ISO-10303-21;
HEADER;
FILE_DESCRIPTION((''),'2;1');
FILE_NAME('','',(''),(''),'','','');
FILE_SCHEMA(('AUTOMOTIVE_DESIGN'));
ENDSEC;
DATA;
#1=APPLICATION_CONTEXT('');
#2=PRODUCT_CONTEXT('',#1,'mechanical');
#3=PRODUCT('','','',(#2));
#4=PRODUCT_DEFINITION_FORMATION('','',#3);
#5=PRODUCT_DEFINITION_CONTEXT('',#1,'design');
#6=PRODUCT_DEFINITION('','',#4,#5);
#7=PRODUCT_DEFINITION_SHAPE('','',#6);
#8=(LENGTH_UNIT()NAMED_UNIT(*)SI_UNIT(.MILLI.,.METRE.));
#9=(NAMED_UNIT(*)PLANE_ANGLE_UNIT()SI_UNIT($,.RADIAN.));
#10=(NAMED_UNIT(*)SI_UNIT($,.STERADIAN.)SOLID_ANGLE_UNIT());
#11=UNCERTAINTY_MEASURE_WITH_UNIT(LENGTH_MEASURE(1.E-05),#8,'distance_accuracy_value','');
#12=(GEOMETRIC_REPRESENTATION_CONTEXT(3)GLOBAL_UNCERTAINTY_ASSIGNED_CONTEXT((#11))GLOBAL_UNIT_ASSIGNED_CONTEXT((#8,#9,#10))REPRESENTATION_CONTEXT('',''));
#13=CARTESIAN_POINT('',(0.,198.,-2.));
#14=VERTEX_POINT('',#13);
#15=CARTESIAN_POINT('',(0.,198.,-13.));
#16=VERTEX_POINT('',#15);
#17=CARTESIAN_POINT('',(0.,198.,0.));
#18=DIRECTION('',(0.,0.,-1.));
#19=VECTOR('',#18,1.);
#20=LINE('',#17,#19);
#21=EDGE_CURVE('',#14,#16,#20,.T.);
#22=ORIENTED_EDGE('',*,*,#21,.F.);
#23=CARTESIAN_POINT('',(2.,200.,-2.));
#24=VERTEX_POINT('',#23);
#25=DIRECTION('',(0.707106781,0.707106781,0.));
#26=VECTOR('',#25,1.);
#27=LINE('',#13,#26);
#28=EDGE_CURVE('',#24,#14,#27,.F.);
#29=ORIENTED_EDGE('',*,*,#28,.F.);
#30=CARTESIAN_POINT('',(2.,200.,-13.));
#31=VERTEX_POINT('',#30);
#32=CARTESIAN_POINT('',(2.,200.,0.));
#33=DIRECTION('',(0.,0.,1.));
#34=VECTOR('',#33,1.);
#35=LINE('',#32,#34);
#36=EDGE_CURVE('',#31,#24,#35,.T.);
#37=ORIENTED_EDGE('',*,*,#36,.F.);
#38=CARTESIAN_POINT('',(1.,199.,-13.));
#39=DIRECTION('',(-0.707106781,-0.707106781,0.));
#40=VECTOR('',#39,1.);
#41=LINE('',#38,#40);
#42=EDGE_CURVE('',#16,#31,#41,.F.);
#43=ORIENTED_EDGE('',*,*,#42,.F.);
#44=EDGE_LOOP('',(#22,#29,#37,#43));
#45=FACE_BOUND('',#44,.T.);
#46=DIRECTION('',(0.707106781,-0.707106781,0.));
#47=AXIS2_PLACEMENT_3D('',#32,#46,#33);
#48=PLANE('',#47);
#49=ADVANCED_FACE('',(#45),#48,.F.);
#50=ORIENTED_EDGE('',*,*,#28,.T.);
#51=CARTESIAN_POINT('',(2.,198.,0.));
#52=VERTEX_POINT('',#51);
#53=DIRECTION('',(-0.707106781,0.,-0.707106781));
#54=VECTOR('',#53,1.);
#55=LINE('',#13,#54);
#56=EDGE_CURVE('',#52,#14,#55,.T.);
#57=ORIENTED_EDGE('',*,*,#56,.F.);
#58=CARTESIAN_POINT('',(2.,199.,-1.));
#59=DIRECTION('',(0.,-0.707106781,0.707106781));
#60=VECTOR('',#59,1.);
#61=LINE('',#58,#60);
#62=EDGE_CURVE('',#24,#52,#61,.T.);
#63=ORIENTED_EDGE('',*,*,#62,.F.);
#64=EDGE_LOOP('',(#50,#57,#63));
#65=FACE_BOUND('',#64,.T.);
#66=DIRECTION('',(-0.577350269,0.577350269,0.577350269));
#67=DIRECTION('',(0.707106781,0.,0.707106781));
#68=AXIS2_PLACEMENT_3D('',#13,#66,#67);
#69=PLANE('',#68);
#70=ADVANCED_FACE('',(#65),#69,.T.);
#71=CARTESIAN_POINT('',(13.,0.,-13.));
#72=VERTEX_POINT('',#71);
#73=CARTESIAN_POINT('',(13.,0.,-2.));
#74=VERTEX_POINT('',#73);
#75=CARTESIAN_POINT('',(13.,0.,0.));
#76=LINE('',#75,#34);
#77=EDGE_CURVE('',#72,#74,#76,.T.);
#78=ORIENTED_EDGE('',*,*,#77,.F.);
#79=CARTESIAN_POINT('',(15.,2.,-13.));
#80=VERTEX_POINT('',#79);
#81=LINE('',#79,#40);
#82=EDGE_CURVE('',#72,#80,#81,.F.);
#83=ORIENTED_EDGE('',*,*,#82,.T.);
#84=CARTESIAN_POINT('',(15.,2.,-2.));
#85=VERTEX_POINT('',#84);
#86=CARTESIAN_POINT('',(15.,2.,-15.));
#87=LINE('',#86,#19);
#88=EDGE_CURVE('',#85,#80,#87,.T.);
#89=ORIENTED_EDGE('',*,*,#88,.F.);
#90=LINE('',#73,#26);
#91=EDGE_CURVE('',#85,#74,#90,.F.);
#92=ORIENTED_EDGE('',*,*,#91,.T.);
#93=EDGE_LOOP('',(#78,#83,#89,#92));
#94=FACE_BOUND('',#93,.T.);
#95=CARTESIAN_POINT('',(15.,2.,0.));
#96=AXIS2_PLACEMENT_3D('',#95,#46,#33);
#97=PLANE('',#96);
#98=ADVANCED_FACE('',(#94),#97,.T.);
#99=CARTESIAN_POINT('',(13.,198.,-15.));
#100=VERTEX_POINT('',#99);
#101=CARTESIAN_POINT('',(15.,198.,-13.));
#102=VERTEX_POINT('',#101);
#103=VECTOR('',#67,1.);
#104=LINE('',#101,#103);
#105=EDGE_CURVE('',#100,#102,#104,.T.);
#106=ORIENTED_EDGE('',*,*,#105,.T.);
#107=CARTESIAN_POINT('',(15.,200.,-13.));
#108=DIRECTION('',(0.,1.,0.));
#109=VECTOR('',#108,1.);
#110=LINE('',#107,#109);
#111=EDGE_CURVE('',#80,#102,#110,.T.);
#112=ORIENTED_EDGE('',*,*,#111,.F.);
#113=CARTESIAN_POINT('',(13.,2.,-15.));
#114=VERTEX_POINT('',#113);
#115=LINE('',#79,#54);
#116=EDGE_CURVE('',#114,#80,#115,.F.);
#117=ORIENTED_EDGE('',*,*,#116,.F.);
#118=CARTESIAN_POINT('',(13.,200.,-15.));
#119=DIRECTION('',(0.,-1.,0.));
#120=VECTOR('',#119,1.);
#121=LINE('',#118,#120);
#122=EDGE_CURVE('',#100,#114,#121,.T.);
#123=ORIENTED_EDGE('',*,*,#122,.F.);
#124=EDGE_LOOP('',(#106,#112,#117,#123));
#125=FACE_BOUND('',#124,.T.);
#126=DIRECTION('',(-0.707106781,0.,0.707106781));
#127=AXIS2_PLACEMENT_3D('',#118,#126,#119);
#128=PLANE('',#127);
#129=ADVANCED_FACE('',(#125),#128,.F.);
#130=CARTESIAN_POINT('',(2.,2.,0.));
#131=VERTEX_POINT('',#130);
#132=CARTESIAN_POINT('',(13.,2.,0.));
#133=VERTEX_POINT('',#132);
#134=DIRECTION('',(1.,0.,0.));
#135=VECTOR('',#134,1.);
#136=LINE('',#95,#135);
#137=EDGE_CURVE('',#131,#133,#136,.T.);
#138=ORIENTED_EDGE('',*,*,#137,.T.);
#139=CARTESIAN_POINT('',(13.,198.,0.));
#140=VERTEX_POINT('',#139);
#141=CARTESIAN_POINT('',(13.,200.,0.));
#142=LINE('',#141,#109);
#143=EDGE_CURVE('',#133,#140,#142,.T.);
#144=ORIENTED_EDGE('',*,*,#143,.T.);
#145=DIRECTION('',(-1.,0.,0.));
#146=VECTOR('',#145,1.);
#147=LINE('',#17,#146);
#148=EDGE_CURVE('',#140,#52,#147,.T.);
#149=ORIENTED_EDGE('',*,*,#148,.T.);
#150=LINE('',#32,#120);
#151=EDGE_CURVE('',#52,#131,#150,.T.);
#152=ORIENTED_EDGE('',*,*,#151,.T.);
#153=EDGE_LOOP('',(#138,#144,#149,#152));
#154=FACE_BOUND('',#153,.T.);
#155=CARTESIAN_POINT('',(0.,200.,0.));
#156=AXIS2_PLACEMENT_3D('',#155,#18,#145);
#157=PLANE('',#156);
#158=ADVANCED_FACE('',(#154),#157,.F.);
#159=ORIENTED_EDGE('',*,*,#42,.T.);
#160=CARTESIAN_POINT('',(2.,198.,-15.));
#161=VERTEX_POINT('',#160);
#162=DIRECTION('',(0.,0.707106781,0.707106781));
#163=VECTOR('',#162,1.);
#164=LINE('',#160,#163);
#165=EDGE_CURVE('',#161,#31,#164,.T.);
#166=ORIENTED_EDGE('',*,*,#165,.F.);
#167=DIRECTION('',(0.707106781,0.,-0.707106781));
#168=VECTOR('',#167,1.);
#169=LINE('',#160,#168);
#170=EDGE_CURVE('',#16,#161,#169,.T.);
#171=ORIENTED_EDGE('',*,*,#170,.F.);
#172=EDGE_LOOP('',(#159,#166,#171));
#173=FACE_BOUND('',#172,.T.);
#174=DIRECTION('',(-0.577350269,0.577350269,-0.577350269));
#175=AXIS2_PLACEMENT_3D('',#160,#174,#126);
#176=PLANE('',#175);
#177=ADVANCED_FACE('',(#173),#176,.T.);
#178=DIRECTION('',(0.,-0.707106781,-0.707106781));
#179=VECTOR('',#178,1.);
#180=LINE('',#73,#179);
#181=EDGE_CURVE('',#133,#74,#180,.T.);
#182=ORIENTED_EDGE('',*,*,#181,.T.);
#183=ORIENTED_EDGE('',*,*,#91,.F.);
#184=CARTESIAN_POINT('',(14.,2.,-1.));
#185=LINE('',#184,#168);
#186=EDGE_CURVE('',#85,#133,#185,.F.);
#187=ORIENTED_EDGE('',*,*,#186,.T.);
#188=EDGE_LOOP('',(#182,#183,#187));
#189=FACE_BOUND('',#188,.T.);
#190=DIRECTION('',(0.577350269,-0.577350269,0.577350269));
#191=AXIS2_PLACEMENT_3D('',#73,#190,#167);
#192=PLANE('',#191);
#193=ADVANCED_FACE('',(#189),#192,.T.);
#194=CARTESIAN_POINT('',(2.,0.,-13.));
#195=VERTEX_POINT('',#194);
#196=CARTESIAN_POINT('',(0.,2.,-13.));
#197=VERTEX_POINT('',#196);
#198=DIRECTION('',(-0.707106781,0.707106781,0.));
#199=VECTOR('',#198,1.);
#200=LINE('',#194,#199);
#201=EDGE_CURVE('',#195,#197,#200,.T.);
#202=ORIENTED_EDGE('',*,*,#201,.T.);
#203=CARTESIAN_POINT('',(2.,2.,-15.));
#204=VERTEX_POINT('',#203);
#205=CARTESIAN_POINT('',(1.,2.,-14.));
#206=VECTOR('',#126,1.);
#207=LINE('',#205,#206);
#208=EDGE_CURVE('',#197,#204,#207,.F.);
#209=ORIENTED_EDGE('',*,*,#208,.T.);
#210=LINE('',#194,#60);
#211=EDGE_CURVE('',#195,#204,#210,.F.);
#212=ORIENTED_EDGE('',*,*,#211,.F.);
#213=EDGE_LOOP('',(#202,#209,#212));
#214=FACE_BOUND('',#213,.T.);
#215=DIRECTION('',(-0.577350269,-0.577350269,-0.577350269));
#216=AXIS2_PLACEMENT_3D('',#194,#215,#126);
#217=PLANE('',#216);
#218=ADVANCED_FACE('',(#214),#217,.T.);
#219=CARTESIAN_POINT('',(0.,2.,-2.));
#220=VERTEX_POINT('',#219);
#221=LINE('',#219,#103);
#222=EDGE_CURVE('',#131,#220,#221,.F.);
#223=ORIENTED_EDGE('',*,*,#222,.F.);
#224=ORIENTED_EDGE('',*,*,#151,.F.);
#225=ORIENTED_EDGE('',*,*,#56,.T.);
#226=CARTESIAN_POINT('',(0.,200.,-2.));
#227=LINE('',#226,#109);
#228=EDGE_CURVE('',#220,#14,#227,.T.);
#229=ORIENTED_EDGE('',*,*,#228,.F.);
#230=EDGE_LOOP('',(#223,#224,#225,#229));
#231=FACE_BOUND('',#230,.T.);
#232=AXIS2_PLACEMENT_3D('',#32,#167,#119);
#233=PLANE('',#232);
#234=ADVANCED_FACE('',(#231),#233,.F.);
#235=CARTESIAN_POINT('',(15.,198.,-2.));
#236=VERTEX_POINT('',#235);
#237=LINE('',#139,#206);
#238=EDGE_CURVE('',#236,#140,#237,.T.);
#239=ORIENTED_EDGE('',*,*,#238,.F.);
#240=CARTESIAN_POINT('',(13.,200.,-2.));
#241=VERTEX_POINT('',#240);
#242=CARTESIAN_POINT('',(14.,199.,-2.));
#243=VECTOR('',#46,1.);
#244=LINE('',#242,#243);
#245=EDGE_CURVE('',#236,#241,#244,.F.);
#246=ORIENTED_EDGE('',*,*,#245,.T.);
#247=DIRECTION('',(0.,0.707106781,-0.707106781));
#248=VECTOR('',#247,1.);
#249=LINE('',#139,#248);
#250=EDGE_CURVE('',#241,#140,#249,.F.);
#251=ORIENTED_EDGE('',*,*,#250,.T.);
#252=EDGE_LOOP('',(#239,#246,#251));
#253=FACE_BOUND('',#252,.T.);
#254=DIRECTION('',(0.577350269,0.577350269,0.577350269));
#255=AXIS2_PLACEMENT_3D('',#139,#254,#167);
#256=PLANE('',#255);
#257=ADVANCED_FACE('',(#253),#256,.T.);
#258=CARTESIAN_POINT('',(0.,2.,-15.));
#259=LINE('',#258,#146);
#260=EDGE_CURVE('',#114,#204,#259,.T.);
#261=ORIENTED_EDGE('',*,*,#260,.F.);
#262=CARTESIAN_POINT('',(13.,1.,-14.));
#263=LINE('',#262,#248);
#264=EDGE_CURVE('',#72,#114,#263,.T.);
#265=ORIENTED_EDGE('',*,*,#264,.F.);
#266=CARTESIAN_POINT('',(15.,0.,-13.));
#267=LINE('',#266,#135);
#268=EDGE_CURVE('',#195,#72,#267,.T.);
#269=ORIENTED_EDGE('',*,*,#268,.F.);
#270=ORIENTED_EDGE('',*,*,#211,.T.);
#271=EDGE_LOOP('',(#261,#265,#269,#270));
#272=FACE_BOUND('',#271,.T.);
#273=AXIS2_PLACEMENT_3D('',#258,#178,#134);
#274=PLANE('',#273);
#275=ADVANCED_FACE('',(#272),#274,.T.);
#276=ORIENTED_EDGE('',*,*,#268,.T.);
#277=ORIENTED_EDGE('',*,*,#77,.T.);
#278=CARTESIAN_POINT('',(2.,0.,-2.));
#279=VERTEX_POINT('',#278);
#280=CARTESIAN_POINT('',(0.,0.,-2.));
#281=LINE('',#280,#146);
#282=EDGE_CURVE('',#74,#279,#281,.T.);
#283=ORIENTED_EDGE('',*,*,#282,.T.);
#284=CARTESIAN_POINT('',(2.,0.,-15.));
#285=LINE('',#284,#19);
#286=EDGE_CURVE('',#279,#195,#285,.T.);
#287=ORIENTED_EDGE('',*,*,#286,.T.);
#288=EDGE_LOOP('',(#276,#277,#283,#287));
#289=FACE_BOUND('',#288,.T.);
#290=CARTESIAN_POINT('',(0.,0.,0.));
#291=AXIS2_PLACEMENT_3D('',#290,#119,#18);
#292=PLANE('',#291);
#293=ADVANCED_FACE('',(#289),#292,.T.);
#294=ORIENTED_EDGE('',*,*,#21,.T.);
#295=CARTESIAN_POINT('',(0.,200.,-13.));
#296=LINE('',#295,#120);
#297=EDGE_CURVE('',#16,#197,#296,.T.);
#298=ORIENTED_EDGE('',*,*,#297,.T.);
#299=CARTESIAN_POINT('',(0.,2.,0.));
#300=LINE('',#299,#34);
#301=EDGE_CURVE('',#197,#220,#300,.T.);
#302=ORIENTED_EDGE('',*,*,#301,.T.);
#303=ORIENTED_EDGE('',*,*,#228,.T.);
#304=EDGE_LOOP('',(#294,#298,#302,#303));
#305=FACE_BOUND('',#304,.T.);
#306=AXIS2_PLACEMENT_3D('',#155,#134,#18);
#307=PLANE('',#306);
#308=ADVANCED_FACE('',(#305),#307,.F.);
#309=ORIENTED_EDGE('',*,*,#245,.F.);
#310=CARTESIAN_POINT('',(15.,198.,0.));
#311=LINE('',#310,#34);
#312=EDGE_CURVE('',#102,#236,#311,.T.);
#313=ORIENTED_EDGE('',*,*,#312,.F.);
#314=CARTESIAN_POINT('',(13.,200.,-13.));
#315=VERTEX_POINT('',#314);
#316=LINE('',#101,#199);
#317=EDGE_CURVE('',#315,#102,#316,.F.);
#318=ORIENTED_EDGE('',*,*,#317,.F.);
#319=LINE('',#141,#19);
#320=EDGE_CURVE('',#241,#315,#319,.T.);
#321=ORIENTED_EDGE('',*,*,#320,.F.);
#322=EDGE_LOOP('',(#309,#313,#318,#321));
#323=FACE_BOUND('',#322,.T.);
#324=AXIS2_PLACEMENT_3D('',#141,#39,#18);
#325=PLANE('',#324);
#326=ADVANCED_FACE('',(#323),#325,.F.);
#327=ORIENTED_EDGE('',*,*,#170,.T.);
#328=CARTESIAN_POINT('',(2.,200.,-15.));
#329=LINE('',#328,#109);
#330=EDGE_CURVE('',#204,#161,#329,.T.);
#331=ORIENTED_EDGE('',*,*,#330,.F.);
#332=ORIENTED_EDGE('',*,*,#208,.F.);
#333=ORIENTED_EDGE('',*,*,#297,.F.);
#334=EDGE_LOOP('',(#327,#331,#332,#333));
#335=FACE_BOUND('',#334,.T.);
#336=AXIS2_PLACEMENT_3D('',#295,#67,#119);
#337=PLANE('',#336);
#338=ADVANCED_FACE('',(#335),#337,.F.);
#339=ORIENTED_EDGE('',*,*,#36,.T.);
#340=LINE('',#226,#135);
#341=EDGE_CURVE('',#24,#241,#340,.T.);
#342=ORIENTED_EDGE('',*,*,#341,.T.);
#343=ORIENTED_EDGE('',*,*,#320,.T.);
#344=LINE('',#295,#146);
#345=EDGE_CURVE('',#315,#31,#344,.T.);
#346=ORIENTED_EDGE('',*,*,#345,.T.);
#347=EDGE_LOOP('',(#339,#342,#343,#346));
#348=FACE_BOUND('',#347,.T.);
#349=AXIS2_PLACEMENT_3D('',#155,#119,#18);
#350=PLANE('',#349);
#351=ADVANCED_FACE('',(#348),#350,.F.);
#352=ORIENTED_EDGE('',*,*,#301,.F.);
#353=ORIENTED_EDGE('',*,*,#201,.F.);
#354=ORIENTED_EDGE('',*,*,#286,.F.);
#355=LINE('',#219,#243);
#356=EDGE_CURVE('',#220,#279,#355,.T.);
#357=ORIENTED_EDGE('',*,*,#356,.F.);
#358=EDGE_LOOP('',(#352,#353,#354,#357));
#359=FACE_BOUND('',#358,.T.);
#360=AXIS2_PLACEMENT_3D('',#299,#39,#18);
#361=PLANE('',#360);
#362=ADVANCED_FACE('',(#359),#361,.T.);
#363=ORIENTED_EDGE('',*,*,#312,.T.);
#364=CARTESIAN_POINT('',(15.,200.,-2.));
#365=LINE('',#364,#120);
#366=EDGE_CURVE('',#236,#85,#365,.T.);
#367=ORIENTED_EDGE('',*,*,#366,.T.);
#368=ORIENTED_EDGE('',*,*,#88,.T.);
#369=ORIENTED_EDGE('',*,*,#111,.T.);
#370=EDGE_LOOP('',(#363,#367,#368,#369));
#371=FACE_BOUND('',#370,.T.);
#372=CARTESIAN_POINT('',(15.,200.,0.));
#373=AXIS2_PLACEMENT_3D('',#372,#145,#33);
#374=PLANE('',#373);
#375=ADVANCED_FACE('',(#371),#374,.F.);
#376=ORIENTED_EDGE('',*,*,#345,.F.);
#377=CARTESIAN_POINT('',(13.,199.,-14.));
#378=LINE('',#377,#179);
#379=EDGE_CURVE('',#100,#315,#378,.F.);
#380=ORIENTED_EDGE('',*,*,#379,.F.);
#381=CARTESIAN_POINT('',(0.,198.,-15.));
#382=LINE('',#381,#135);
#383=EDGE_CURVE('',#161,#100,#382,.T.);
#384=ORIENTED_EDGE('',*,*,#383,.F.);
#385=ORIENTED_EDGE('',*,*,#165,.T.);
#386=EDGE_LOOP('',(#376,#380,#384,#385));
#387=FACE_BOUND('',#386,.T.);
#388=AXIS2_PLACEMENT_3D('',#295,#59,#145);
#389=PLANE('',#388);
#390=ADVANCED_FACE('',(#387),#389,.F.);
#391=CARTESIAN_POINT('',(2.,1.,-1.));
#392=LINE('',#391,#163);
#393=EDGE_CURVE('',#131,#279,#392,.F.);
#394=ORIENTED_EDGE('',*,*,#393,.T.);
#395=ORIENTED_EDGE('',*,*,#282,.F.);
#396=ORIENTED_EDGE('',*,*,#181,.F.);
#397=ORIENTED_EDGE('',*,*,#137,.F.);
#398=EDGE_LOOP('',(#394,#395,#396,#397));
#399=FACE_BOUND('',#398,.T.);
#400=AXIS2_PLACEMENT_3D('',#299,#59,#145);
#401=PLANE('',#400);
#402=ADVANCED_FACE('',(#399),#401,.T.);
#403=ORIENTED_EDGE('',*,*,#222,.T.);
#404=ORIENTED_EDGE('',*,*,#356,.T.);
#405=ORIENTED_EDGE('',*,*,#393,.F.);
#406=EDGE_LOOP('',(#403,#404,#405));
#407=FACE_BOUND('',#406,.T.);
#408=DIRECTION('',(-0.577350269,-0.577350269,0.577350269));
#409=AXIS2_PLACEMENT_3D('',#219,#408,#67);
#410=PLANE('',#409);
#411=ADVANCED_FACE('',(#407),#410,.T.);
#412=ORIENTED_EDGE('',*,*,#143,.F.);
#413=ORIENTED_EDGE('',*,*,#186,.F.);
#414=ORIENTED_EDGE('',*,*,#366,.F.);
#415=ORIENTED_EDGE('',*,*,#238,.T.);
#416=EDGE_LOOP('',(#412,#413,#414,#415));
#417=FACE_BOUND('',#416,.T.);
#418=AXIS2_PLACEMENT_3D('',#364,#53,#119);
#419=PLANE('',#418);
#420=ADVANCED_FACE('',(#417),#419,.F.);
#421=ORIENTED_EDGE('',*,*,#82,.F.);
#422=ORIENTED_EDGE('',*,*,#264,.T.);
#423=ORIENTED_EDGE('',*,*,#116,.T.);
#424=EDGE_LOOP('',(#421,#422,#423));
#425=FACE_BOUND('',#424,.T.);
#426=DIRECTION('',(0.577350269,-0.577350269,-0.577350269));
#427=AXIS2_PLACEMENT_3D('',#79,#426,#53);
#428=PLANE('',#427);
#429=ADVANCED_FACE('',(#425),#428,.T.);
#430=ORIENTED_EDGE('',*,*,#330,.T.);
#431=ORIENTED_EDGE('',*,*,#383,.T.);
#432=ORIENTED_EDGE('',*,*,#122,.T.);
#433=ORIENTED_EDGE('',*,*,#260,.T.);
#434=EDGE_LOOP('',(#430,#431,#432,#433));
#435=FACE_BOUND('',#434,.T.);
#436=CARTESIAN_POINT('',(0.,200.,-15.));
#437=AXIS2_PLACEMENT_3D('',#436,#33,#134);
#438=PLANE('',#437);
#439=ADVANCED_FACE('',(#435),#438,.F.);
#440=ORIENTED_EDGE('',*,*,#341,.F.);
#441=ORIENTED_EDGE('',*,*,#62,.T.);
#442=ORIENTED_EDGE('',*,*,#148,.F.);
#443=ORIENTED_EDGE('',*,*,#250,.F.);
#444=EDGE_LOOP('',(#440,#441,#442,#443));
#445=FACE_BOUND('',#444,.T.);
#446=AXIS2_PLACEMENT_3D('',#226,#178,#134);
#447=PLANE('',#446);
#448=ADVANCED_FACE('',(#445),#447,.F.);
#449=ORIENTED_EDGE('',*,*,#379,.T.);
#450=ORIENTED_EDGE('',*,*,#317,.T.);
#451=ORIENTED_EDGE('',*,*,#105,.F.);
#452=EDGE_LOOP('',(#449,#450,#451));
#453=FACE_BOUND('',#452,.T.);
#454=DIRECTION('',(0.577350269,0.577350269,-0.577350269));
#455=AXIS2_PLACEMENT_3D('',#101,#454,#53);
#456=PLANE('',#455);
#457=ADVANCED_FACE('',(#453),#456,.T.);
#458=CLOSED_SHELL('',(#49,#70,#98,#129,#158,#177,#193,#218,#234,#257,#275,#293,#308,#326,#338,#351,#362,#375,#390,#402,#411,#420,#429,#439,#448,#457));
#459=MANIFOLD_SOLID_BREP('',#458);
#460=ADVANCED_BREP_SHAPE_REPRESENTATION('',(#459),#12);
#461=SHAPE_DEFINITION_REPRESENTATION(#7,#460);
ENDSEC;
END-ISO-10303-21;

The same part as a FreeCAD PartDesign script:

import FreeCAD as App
import Part
import Sketcher

V = App.Vector
Q = App.Units.Quantity

doc = App.newDocument("Part")
body = doc.addObject("PartDesign::Body", "Body")

# Sketch on XZ plane
sketch1 = doc.addObject("Sketcher::SketchObject", "Sketch")
body.addObject(sketch1)
sketch1.AttachmentSupport = (doc.XZ_Plane, [""])
sketch1.MapMode = "FlatFace"
sketch1.addGeometry([
    Part.LineSegment(V(0, -15, 0), V(0, 0, 0)),
    Part.LineSegment(V(0, 0, 0), V(15, 0, 0)),
    Part.LineSegment(V(15, 0, 0), V(15, -15, 0)),
    Part.LineSegment(V(15, -15, 0), V(0, -15, 0)),
], False)
sketch1.addConstraint([
    Sketcher.Constraint("Coincident", 0, 2, 1, 1),
    Sketcher.Constraint("Coincident", 1, 2, 2, 1),
    Sketcher.Constraint("Coincident", 2, 2, 3, 1),
    Sketcher.Constraint("Coincident", 3, 2, 0, 1),
    Sketcher.Constraint("Vertical", 0),
    Sketcher.Constraint("Horizontal", 1),
    Sketcher.Constraint("Vertical", 2),
    Sketcher.Constraint("Horizontal", 3),
    Sketcher.Constraint("Coincident", 0, 2, -1, 1),
    Sketcher.Constraint("Equal", 3, 0),
    Sketcher.Constraint("DistanceX", 1, 1, 1, 2, Q("15 mm")),
])
pad1 = doc.addObject("PartDesign::Pad", "Pad")
body.addObject(pad1)
pad1.Profile = sketch1
pad1.Length = 200
pad1.Reversed = True
doc.recompute()

chamfer = doc.addObject("PartDesign::Chamfer", "Chamfer")
body.addObject(chamfer)
chamfer.Base = (pad1, ["Edge1"])
chamfer.UseAllEdges = True
chamfer.Size = 2

doc.recompute()
